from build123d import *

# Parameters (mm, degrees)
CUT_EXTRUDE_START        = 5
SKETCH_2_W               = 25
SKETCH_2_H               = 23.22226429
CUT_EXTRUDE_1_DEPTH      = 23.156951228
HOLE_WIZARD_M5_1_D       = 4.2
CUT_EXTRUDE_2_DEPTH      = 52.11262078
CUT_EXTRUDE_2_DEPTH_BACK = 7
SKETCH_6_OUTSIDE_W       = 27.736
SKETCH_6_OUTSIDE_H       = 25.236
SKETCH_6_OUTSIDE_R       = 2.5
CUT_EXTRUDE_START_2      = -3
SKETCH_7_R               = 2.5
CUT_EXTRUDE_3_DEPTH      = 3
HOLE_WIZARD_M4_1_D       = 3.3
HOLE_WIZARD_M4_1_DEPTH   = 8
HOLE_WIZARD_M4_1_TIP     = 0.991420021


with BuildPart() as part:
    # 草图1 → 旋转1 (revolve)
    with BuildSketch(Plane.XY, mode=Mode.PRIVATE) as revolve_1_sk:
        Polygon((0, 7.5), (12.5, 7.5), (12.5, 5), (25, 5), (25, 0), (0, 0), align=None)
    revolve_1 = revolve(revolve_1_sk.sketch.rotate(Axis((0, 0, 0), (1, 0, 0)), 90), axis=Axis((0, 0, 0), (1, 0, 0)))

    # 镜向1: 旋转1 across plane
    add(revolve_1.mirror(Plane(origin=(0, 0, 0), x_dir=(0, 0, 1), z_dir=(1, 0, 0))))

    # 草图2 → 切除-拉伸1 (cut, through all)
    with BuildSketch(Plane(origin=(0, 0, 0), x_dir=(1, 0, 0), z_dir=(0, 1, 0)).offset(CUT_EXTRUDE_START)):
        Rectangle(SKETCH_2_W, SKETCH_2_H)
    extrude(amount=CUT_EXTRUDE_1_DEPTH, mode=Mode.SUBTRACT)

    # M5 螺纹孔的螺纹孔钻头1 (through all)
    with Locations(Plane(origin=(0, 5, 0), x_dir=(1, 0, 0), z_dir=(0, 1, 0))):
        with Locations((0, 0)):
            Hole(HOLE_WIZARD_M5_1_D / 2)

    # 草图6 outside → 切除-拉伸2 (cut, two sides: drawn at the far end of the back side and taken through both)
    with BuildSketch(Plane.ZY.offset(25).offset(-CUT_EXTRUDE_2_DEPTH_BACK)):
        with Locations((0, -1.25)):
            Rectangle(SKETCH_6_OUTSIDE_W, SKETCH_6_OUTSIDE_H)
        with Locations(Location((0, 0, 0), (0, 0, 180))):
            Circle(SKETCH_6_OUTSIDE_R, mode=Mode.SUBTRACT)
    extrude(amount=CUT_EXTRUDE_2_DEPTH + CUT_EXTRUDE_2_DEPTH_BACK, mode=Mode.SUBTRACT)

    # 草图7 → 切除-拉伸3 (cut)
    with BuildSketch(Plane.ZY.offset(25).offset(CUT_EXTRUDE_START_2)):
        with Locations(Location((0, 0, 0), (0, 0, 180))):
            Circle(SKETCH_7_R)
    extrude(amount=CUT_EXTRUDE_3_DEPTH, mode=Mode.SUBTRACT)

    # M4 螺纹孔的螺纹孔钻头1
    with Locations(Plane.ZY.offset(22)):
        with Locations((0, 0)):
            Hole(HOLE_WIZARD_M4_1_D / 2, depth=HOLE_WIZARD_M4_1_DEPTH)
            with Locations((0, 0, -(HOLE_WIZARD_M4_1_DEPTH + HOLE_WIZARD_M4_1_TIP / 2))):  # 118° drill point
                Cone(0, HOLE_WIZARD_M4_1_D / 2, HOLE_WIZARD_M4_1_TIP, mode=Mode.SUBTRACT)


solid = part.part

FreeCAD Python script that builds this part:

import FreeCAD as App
import Part
import Sketcher
Q = App.Units.Quantity


def add_polygon(sketch, points):
    """Adds a closed chain of lines whose ends are joined by coincident constraints."""
    first, n = sketch.GeometryCount, len(points)
    for a, b in zip(points, points[1:] + points[:1]):
        sketch.addGeometry(Part.LineSegment(App.Vector(*a, 0), App.Vector(*b, 0)), False)
    for i in range(n):
        sketch.addConstraint(Sketcher.Constraint("Coincident", first + i, 2, first + (i + 1) % n, 1))

doc = App.newDocument("Part")
body = doc.addObject("PartDesign::Body", "Body")

# Sketch on XY plane
sketch1 = doc.addObject("Sketcher::SketchObject", "Sketch")
body.addObject(sketch1)
sketch1.AttachmentSupport = (doc.XY_Plane, [""])
sketch1.MapMode = "FlatFace"
add_polygon(sketch1, [(12.5, 7.5), (0, 7.5), (0, 0), (25, 0), (25, 5), (12.5, 5)])  # lines 0-5
sketch1.addConstraint(Sketcher.Constraint("Horizontal", 0))
sketch1.addConstraint(Sketcher.Constraint("Vertical", 1))
sketch1.addConstraint(Sketcher.Constraint("Horizontal", 2))
sketch1.addConstraint(Sketcher.Constraint("Vertical", 3))
sketch1.addConstraint(Sketcher.Constraint("Horizontal", 4))
sketch1.addConstraint(Sketcher.Constraint("Vertical", 5))
sketch1.addConstraint(Sketcher.Constraint("Coincident", 1, 2, -1, 1))
sketch1.addConstraint(Sketcher.Constraint("Equal", 0, 4))
sketch1.addConstraint(Sketcher.Constraint("DistanceX", 2, 1, 2, 2, Q("25 mm")))
sketch1.addConstraint(Sketcher.Constraint("DistanceY", 3, 1, 3, 2, Q("5 mm")))
sketch1.addConstraint(Sketcher.Constraint("DistanceY", 1, 2, 1, 1, Q("7.5 mm")))
revolution = doc.addObject("PartDesign::Revolution", "Revolution")
body.addObject(revolution)
revolution.Profile = sketch1
revolution.ReferenceAxis = (sketch1, ["H_Axis"])
revolution.Angle = 360
doc.recompute()

mirrored = doc.addObject("PartDesign::Mirrored", "Mirrored")
body.addObject(mirrored)
mirrored.Originals = [revolution]
mirrored.MirrorPlane = (doc.YZ_Plane, [""])
body.Tip = mirrored

# Sketch on XZ plane
sketch2 = doc.addObject("Sketcher::SketchObject", "Sketch001")
body.addObject(sketch2)
sketch2.AttachmentSupport = (doc.XZ_Plane, [""])
sketch2.MapMode = "FlatFace"
sketch2.AttachmentOffset = App.Placement(App.Vector(0, 0, -5), App.Rotation())
add_polygon(sketch2, [(-12, -12), (-12, 12), (12, 12), (12, -12)])  # lines 0-3
sketch2.addConstraint(Sketcher.Constraint("Vertical", 0))
sketch2.addConstraint(Sketcher.Constraint("Horizontal", 1))
sketch2.addConstraint(Sketcher.Constraint("Vertical", 2))
sketch2.addConstraint(Sketcher.Constraint("Horizontal", 3))
sketch2.addConstraint(Sketcher.Constraint("Symmetric", 0, 2, 2, 2, -1, 1))
sketch2.addConstraint(Sketcher.Constraint("DistanceX", 1, 1, 1, 2, Q("25 mm")))
sketch2.addConstraint(Sketcher.Constraint("DistanceY", 0, 1, 0, 2, Q("23.222264 mm")))
pocket1 = doc.addObject("PartDesign::Pocket", "Pocket")
body.addObject(pocket1)
pocket1.Profile = sketch2
pocket1.Type = "ThroughAll"

# Sketch on XZ plane
sketch3 = doc.addObject("Sketcher::SketchObject", "Sketch002")
body.addObject(sketch3)
sketch3.AttachmentSupport = (doc.XZ_Plane, [""])
sketch3.MapMode = "FlatFace"
sketch3.AttachmentOffset = App.Placement(App.Vector(0, 0, -5), App.Rotation())
sketch3.addGeometry(Part.Circle(App.Vector(0, 0, 0), App.Vector(0, 0, 1), 2.1), False)
sketch3.addConstraint(Sketcher.Constraint("Coincident", 0, 3, -1, 1))
sketch3.addConstraint(Sketcher.Constraint("Diameter", 0, Q("4.2 mm")))
doc.recompute()
hole = doc.addObject("PartDesign::Hole", "Hole")
body.addObject(hole)
hole.Profile = sketch3
hole.ThreadType = "None"
hole.Diameter = 4.2
hole.DepthType = "ThroughAll"
hole.Reversed = True

# Sketch on YZ plane
sketch4 = doc.addObject("Sketcher::SketchObject", "Sketch003")
body.addObject(sketch4)
sketch4.AttachmentSupport = (doc.YZ_Plane, [""])
sketch4.MapMode = "FlatFace"
sketch4.AttachmentOffset = App.Placement(App.Vector(0, 0, -25), App.Rotation())
add_polygon(sketch4, [(11.4, -13.9), (-13.9, -13.9), (-13.9, 13.9), (11.4, 13.9)])  # lines 0-3
sketch4.addGeometry(Part.Circle(App.Vector(0, 0, 0), App.Vector(0, 0, 1), 2.5), False)  # 4
sketch4.addConstraint(Sketcher.Constraint("Horizontal", 0))
sketch4.addConstraint(Sketcher.Constraint("Vertical", 1))
sketch4.addConstraint(Sketcher.Constraint("Horizontal", 2))
sketch4.addConstraint(Sketcher.Constraint("Vertical", 3))
sketch4.addConstraint(Sketcher.Constraint("Coincident", 4, 3, -1, 1))
sketch4.addConstraint(Sketcher.Constraint("Diameter", 4, Q("5 mm")))
sketch4.addConstraint(Sketcher.Constraint("DistanceX", 0, 2, 0, 1, Q("25.236 mm")))
sketch4.addConstraint(Sketcher.Constraint("DistanceY", 1, 1, 1, 2, Q("27.736 mm")))
sketch4.addConstraint(Sketcher.Constraint("DistanceX", 0, 2, -1, 1, Q("13.868 mm")))
sketch4.addConstraint(Sketcher.Constraint("DistanceY", 0, 2, -1, 1, Q("13.868 mm")))
pocket2 = doc.addObject("PartDesign::Pocket", "Pocket001")
body.addObject(pocket2)
pocket2.Profile = sketch4
pocket2.Type = "TwoLengths"
pocket2.Length = 52.112621
pocket2.Length2 = 7

# Sketch on YZ plane
sketch5 = doc.addObject("Sketcher::SketchObject", "Sketch004")
body.addObject(sketch5)
sketch5.AttachmentSupport = (doc.YZ_Plane, [""])
sketch5.MapMode = "FlatFace"
sketch5.AttachmentOffset = App.Placement(App.Vector(0, 0, -22), App.Rotation())
sketch5.addGeometry(Part.Circle(App.Vector(0, 0, 0), App.Vector(0, 0, 1), 2.5), False)
sketch5.addConstraint(Sketcher.Constraint("Coincident", 0, 3, -1, 1))
sketch5.addConstraint(Sketcher.Constraint("Diameter", 0, Q("5 mm")))
pocket3 = doc.addObject("PartDesign::Pocket", "Pocket002")
body.addObject(pocket3)
pocket3.Profile = sketch5
pocket3.Length = 3

# Sketch on YZ plane
sketch6 = doc.addObject("Sketcher::SketchObject", "Sketch005")
body.addObject(sketch6)
sketch6.AttachmentSupport = (doc.YZ_Plane, [""])
sketch6.MapMode = "FlatFace"
sketch6.AttachmentOffset = App.Placement(App.Vector(0, 0, -22), App.Rotation())
sketch6.addGeometry(Part.Circle(App.Vector(0, 0, 0), App.Vector(0, 0, 1), 1.6), False)
sketch6.addConstraint(Sketcher.Constraint("Coincident", 0, 3, -1, 1))
sketch6.addConstraint(Sketcher.Constraint("Diameter", 0, Q("3.3 mm")))
doc.recompute()
hole2 = doc.addObject("PartDesign::Hole", "Hole001")
body.addObject(hole2)
hole2.Profile = sketch6
hole2.ThreadType = "None"
hole2.Diameter = 3.3
hole2.DepthType = "Dimension"
hole2.Depth = 8
hole2.DrillPoint = "Angled"
hole2.DrillPointAngle = 118
hole2.Reversed = True

doc.recompute()
